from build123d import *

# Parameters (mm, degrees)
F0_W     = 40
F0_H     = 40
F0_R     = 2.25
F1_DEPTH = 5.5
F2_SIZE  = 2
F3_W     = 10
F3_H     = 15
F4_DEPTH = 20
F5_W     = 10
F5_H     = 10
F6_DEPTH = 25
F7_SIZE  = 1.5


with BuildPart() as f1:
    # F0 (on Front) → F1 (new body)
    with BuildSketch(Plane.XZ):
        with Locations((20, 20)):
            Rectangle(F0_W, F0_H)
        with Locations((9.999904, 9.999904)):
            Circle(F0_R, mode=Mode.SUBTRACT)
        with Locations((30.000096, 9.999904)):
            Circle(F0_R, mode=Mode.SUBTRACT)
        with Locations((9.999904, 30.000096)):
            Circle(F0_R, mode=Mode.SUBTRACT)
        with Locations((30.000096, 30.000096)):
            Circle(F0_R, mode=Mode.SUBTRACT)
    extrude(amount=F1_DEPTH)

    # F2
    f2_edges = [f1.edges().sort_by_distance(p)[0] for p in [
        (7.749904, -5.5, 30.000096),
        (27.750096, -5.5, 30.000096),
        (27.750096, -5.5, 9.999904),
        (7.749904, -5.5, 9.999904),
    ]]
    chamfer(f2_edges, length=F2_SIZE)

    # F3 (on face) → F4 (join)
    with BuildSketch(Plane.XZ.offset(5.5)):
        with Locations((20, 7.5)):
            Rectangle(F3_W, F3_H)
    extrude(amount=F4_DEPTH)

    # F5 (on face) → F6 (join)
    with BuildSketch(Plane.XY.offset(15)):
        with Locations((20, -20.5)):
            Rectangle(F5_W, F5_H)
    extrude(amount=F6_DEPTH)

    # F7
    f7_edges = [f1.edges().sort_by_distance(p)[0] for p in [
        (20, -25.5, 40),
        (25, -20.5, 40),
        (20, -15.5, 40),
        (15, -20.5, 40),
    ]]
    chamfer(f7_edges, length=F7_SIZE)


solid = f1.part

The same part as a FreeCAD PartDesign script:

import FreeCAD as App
import Part
import Sketcher
Q = App.Units.Quantity


def edges_at(feature, points):
    """Names of the edges that pass closest to the given points."""
    edges = feature.Shape.Edges
    near = lambda p: min(range(len(edges)), key=lambda i: edges[i].distToShape(Part.Vertex(*p))[0])
    return sorted({f"Edge{near(p) + 1}" for p in points})


def add_polygon(sketch, points):
    """Adds a closed chain of lines whose ends are joined by coincident constraints."""
    first, n = sketch.GeometryCount, len(points)
    for a, b in zip(points, points[1:] + points[:1]):
        sketch.addGeometry(Part.LineSegment(App.Vector(*a, 0), App.Vector(*b, 0)), False)
    for i in range(n):
        sketch.addConstraint(Sketcher.Constraint("Coincident", first + i, 2, first + (i + 1) % n, 1))

doc = App.newDocument("Part")
body = doc.addObject("PartDesign::Body", "Body")

# Sketch on XZ plane
sketch1 = body.newObject("Sketcher::SketchObject", "Sketch")
sketch1.AttachmentSupport = (doc.getObject("XZ_Plane"), [""])
sketch1.MapMode = "FlatFace"
add_polygon(sketch1, [(0, 40), (0, 0), (40, 0), (40, 40)])  # lines 0-3
sketch1.addGeometry(Part.Circle(App.Vector(10, 10, 0), App.Vector(0, 0, 1), 2.2), False)  # 4
sketch1.addGeometry(Part.Circle(App.Vector(30, 10, 0), App.Vector(0, 0, 1), 2.2), False)  # 5
sketch1.addGeometry(Part.Circle(App.Vector(10, 30, 0), App.Vector(0, 0, 1), 2.2), False)  # 6
sketch1.addGeometry(Part.Circle(App.Vector(30, 30, 0), App.Vector(0, 0, 1), 2.2), False)  # 7
sketch1.addConstraint([
    Sketcher.Constraint("Vertical", 0),
    Sketcher.Constraint("Horizontal", 1),
    Sketcher.Constraint("Vertical", 2),
    Sketcher.Constraint("Horizontal", 3),
    Sketcher.Constraint("Coincident", 0, 2, -1, 1),
    Sketcher.Constraint("Equal", 4, 5),
    Sketcher.Constraint("Equal", 5, 6),
    Sketcher.Constraint("Equal", 6, 7),
    Sketcher.Constraint("Horizontal", 4, 3, 5, 3),
    Sketcher.Constraint("Horizontal", 6, 3, 7, 3),
    Sketcher.Constraint("Vertical", 4, 3, 6, 3),
    Sketcher.Constraint("Vertical", 5, 3, 7, 3),
    Sketcher.Constraint("Equal", 3, 0),
    Sketcher.Constraint("Diameter", 4, Q("4.5 mm")),
    Sketcher.Constraint("DistanceX", 1, 1, 1, 2, Q("40 mm")),
    Sketcher.Constraint("DistanceX", 4, 3, 5, 3, Q("20.000192 mm")),
    Sketcher.Constraint("DistanceY", 4, 3, 6, 3, Q("20.000192 mm")),
    Sketcher.Constraint("DistanceX", -1, 1, 4, 3, Q("9.999904 mm")),
    Sketcher.Constraint("DistanceY", -1, 1, 4, 3, Q("9.999904 mm")),
])
pad1 = body.newObject("PartDesign::Pad", "Pad")
pad1.Profile = sketch1
pad1.Length = 5.5
doc.recompute()

chamfer = body.newObject("PartDesign::Chamfer", "Chamfer")
chamfer.Base = (pad1, edges_at(pad1, [
    (7.75, -5.5, 30),
    (27.75, -5.5, 30),
    (27.75, -5.5, 10),
    (7.75, -5.5, 10),
]))
chamfer.Size = 2

# Sketch on XZ plane
sketch2 = body.newObject("Sketcher::SketchObject", "Sketch001")
sketch2.AttachmentSupport = (doc.getObject("XZ_Plane"), [""])
sketch2.MapMode = "FlatFace"
sketch2.AttachmentOffset = App.Placement(App.Vector(0, 0, 5.5), App.Rotation())
add_polygon(sketch2, [(15, 15), (15, 0), (25, 0), (25, 15)])  # lines 0-3
sketch2.addConstraint([
    Sketcher.Constraint("Vertical", 0),
    Sketcher.Constraint("Horizontal", 1),
    Sketcher.Constraint("Vertical", 2),
    Sketcher.Constraint("Horizontal", 3),
    Sketcher.Constraint("PointOnObject", 0, 2, -1),
    Sketcher.Constraint("DistanceX", 1, 1, 1, 2, Q("10 mm")),
    Sketcher.Constraint("DistanceY", 0, 2, 0, 1, Q("15 mm")),
    Sketcher.Constraint("DistanceX", -1, 1, 0, 2, Q("15 mm")),
])
pad2 = body.newObject("PartDesign::Pad", "Pad001")
pad2.Profile = sketch2
pad2.Length = 20

# Sketch on XY plane
sketch3 = body.newObject("Sketcher::SketchObject", "Sketch002")
sketch3.AttachmentSupport = (doc.getObject("XY_Plane"), [""])
sketch3.MapMode = "FlatFace"
sketch3.AttachmentOffset = App.Placement(App.Vector(0, 0, 15), App.Rotation())
add_polygon(sketch3, [(15, -16), (15, -26), (25, -26), (25, -16)])  # lines 0-3
sketch3.addConstraint([
    Sketcher.Constraint("Vertical", 0),
    Sketcher.Constraint("Horizontal", 1),
    Sketcher.Constraint("Vertical", 2),
    Sketcher.Constraint("Horizontal", 3),
    Sketcher.Constraint("Equal", 3, 0),
    Sketcher.Constraint("DistanceX", 1, 1, 1, 2, Q("10 mm")),
    Sketcher.Constraint("DistanceX", -1, 1, 0, 2, Q("15 mm")),
    Sketcher.Constraint("DistanceY", 0, 2, -1, 1, Q("25.5 mm")),
])
pad3 = body.newObject("PartDesign::Pad", "Pad002")
pad3.Profile = sketch3
pad3.Length = 25
doc.recompute()

chamfer2 = body.newObject("PartDesign::Chamfer", "Chamfer001")
chamfer2.Base = (pad3, edges_at(pad3, [
    (20, -25.5, 40),
    (25, -20.5, 40),
    (20, -15.5, 40),
    (15, -20.5, 40),
]))
chamfer2.Size = 1.5

doc.recompute()
